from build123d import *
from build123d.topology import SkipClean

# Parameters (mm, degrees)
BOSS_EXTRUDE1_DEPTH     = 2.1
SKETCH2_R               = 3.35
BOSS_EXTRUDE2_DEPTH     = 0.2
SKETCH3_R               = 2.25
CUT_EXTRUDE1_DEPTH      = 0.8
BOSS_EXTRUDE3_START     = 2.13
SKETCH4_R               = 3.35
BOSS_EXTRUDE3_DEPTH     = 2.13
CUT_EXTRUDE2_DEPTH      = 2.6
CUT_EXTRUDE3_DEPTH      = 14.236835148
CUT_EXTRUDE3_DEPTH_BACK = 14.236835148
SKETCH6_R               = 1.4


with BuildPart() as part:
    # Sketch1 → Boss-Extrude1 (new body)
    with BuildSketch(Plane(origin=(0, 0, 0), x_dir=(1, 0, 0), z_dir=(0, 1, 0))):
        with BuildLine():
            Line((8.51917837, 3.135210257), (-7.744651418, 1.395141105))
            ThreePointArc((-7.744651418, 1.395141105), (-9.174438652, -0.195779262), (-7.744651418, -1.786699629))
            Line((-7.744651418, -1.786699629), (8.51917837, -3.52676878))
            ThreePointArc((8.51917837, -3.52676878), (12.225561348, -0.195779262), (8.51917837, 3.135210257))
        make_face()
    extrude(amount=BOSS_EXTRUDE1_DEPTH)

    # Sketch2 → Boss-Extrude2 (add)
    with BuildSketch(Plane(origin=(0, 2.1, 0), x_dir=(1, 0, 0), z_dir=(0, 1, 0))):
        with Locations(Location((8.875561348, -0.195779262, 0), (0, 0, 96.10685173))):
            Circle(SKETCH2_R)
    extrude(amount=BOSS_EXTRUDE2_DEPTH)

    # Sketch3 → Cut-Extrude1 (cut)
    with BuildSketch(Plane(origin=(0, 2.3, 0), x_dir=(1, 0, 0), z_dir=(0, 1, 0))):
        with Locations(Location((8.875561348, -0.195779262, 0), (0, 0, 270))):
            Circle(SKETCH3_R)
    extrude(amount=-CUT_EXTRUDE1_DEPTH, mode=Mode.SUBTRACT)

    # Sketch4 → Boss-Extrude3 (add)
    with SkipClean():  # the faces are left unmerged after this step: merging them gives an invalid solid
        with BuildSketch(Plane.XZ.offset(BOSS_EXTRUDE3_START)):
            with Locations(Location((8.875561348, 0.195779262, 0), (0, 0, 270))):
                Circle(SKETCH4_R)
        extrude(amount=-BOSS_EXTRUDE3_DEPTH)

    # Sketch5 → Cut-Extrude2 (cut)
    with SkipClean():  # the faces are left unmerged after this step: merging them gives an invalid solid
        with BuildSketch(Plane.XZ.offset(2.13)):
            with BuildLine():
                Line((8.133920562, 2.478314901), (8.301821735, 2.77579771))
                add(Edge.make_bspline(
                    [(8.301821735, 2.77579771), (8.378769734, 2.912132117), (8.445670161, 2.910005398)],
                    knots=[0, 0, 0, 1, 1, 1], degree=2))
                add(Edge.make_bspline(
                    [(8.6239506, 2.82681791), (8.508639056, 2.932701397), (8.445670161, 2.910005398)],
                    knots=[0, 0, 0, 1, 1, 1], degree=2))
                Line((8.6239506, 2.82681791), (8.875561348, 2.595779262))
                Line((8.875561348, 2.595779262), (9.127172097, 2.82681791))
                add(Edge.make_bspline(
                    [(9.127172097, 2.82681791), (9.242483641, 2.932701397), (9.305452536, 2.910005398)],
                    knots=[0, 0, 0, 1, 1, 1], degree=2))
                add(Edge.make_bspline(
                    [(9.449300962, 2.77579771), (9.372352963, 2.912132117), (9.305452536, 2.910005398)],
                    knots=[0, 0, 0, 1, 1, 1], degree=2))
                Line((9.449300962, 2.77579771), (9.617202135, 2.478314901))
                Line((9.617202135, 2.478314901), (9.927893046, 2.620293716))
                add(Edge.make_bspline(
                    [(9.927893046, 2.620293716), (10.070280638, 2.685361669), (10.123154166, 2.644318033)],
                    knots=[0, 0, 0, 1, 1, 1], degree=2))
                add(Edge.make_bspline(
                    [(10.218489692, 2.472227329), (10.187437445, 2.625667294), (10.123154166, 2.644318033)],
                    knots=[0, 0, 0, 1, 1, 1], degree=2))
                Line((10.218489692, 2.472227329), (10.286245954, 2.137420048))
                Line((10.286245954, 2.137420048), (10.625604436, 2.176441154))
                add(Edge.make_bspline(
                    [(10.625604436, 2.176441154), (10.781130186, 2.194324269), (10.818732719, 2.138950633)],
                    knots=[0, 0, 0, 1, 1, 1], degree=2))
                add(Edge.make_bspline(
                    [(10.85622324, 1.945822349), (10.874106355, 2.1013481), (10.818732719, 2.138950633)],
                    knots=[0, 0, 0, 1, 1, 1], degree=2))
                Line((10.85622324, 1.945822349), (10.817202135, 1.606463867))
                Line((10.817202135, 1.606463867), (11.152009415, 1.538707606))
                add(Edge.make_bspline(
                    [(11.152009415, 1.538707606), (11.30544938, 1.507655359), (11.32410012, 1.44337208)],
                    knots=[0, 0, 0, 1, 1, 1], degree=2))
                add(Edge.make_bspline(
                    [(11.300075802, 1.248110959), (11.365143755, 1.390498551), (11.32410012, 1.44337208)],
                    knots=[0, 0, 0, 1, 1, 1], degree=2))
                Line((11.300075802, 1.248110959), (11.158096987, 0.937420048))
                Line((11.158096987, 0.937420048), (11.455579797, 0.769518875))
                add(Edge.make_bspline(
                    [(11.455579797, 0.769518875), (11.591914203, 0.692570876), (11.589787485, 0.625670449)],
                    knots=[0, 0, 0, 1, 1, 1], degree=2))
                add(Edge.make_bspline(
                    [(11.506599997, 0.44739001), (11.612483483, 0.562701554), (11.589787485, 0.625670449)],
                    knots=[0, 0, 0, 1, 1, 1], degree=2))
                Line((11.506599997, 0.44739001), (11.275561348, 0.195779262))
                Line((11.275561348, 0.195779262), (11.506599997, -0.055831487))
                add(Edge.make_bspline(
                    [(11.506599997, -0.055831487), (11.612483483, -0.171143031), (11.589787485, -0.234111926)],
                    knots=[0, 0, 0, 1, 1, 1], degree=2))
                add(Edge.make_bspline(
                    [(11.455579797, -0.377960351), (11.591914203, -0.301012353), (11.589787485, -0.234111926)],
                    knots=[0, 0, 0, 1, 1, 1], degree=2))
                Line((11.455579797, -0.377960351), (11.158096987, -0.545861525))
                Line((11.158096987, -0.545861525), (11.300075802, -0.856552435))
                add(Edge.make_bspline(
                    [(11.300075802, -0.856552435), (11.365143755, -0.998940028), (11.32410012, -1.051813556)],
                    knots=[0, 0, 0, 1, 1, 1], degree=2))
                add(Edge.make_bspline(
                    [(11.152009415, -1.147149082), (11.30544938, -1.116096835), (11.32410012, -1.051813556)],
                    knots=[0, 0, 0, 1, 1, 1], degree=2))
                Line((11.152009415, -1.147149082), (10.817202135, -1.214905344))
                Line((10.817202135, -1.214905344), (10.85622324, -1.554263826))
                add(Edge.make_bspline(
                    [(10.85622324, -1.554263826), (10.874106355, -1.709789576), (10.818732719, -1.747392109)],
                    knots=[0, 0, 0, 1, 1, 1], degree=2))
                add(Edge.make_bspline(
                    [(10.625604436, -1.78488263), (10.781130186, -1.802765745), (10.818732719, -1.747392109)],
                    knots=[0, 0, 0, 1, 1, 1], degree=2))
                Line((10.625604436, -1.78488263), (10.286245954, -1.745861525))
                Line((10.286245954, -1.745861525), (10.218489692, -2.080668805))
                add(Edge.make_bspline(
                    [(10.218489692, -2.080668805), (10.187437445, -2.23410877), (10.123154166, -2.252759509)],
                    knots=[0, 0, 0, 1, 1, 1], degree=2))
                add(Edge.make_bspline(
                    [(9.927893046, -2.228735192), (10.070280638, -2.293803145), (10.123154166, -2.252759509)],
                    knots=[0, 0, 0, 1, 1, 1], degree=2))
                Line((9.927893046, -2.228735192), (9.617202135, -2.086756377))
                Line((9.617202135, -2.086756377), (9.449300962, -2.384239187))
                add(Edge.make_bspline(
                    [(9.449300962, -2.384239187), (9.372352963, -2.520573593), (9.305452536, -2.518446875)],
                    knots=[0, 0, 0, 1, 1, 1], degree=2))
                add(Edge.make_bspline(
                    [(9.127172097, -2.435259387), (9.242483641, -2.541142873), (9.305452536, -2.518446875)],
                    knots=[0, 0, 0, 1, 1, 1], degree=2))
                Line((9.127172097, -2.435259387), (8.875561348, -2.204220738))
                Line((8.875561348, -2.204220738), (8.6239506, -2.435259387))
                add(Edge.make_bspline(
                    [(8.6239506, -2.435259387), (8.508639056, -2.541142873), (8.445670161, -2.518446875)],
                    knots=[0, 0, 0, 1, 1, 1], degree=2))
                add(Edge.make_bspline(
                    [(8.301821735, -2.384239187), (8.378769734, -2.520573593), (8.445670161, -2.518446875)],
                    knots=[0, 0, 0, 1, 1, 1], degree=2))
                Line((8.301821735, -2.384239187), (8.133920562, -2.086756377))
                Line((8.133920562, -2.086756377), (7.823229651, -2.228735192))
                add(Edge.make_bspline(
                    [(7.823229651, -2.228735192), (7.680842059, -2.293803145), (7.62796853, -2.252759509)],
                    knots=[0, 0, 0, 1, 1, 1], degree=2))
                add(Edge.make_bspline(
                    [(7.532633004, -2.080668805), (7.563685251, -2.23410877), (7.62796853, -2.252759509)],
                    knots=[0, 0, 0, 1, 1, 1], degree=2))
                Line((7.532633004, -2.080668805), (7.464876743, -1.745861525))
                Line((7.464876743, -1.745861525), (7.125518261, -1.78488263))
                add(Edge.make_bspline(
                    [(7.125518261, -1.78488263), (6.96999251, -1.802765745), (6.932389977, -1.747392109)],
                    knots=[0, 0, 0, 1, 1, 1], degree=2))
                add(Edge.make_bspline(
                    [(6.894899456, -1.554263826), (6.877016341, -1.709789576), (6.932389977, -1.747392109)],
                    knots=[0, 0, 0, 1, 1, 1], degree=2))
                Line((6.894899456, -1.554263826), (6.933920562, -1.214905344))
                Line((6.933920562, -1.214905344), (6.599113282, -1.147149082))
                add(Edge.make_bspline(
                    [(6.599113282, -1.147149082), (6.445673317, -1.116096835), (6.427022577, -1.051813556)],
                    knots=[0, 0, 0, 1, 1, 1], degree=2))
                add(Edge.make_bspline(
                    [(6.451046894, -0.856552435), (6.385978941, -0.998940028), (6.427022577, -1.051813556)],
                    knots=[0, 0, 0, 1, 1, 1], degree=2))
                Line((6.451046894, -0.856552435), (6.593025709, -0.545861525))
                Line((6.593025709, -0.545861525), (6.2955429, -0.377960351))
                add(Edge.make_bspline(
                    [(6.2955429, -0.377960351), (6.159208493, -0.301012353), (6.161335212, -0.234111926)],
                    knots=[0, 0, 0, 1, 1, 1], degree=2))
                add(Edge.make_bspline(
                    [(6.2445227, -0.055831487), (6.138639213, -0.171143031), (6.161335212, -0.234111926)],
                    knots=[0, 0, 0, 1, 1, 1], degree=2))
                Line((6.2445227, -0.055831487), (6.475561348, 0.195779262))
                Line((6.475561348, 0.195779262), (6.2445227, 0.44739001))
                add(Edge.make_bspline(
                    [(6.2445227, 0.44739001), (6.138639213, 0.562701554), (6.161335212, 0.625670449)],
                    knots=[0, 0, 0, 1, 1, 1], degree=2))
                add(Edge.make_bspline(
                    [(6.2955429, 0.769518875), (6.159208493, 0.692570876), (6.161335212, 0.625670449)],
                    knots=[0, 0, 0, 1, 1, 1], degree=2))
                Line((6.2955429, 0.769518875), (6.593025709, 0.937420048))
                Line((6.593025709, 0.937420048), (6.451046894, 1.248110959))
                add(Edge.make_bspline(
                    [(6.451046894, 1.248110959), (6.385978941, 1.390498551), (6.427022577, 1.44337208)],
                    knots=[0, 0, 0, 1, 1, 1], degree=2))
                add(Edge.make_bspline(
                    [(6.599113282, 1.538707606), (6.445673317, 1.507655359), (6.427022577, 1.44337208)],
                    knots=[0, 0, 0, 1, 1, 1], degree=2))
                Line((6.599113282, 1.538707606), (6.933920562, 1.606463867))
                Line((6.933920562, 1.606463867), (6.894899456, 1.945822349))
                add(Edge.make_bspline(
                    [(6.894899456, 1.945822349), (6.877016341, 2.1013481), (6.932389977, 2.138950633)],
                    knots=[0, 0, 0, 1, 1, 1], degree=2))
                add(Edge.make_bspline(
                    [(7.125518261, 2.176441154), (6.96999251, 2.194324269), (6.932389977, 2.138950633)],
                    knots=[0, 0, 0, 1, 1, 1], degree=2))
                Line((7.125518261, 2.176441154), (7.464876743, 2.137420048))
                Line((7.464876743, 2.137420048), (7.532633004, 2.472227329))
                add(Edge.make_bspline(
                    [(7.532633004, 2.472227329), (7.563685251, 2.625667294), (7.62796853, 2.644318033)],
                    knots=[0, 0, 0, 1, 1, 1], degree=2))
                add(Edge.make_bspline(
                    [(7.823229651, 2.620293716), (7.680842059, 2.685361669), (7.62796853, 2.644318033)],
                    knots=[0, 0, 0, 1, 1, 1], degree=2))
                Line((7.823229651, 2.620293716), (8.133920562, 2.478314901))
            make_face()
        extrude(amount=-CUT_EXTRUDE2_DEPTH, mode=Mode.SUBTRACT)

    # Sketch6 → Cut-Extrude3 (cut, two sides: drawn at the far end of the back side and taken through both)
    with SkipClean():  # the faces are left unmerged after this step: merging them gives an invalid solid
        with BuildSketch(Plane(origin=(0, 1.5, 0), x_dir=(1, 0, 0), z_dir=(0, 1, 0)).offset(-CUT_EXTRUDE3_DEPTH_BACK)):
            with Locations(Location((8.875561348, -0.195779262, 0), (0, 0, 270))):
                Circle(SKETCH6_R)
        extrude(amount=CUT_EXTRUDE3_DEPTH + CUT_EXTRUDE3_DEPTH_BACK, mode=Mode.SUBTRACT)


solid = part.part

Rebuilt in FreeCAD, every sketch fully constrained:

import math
import FreeCAD as App
import Part
import Sketcher

V = App.Vector

doc = App.newDocument("Part")
body = doc.addObject("PartDesign::Body", "Body")

sketch1 = body.newObject("Sketcher::SketchObject", "Sketch")
sketch1.AttachmentSupport = (doc.getObject("XZ_Plane"), [""])
sketch1.MapMode = "FlatFace"
sketch1.addGeometry([
    Part.LineSegment(V(8.5, -3.1, 0), V(-7.7, -1.4, 0)),
    Part.ArcOfCircle(Part.Circle(V(-7.6, 0.2, 0), V(0, 0, 1), 1.6), math.radians(96), math.radians(264)),
    Part.LineSegment(V(-7.7, 1.8, 0), V(8.5, 3.5, 0)),
    Part.ArcOfCircle(Part.Circle(V(8.9, 0.2, 0), V(0, 0, 1), 3.4), math.radians(-96), math.radians(96)),
], False)
sketch1.addConstraint([
    Sketcher.Constraint("Tangent", 0, 2, 1, 2),
    Sketcher.Constraint("Tangent", 1, 1, 2, 1),
    Sketcher.Constraint("Tangent", 2, 2, 3, 2),
    Sketcher.Constraint("Tangent", 3, 1, 0, 1),
    Sketcher.Constraint("Horizontal", 1, 3, 3, 3),
    Sketcher.Constraint("Radius", 1, 1.6),
    Sketcher.Constraint("Radius", 3, 3.35),
    Sketcher.Constraint("DistanceX", 1, 3, 3, 3, 16.45),
    Sketcher.Constraint("DistanceY", -1, 1, 1, 1, 1.7867),
    Sketcher.Constraint("DistanceX", 1, 3, -1, 1, 7.574439),
])
pad1 = body.newObject("PartDesign::Pad", "Pad")
pad1.Profile = sketch1
pad1.Length = 2.1
pad1.Reversed = True

sketch2 = body.newObject("Sketcher::SketchObject", "Sketch001")
sketch2.AttachmentSupport = (doc.getObject("XZ_Plane"), [""])
sketch2.MapMode = "FlatFace"
sketch2.AttachmentOffset = App.Placement(V(0, 0, -2.1), App.Rotation())
sketch2.addGeometry(Part.Circle(V(8.9, 0.2, 0), V(0, 0, 1), 3.4), False)
sketch2.addConstraint([
    Sketcher.Constraint("Diameter", 0, 6.7),
    Sketcher.Constraint("DistanceX", -1, 1, 0, 3, 8.875561),
    Sketcher.Constraint("DistanceY", -1, 1, 0, 3, 0.195779),
])
pad2 = body.newObject("PartDesign::Pad", "Pad001")
pad2.Profile = sketch2
pad2.Length = 0.2
pad2.Reversed = True

sketch3 = body.newObject("Sketcher::SketchObject", "Sketch002")
sketch3.AttachmentSupport = (doc.getObject("XZ_Plane"), [""])
sketch3.MapMode = "FlatFace"
sketch3.AttachmentOffset = App.Placement(V(0, 0, -2.3), App.Rotation())
sketch3.addGeometry(Part.Circle(V(8.9, 0.2, 0), V(0, 0, 1), 2.2), False)
sketch3.addConstraint([
    Sketcher.Constraint("Diameter", 0, 4.5),
    Sketcher.Constraint("DistanceX", -1, 1, 0, 3, 8.875561),
    Sketcher.Constraint("DistanceY", -1, 1, 0, 3, 0.195779),
])
pocket1 = body.newObject("PartDesign::Pocket", "Pocket")
pocket1.Profile = sketch3
pocket1.Length = 0.8
pocket1.Reversed = True

sketch4 = body.newObject("Sketcher::SketchObject", "Sketch003")
sketch4.AttachmentSupport = (doc.getObject("XZ_Plane"), [""])
sketch4.MapMode = "FlatFace"
sketch4.AttachmentOffset = App.Placement(V(0, 0, 2.13), App.Rotation())
sketch4.addGeometry(Part.Circle(V(8.9, 0.2, 0), V(0, 0, 1), 3.4), False)
sketch4.addConstraint([
    Sketcher.Constraint("Diameter", 0, 6.7),
    Sketcher.Constraint("DistanceX", -1, 1, 0, 3, 8.875561),
    Sketcher.Constraint("DistanceY", -1, 1, 0, 3, 0.195779),
])
pad3 = body.newObject("PartDesign::Pad", "Pad002")
pad3.Profile = sketch4
pad3.Length = 2.13
pad3.Reversed = True

sketch5 = body.newObject("Sketcher::SketchObject", "Sketch004")
sketch5.AttachmentSupport = (doc.getObject("XZ_Plane"), [""])
sketch5.MapMode = "FlatFace"
sketch5.AttachmentOffset = App.Placement(V(0, 0, 2.13), App.Rotation())
sketch5.addGeometry([
    Part.LineSegment(V(8.301822, 2.775798, 0), V(8.133921, 2.478315, 0)),
    Part.LineSegment(V(8.133921, 2.478315, 0), V(7.82323, 2.620294, 0)),
    Part.BSplineCurve([V(7.82323, 2.620294, 0), V(7.680842, 2.685362, 0), V(7.627969, 2.644318, 0)], [3, 3], [0, 1], False, 2, [1, 1, 1], False),
    Part.BSplineCurve([V(7.532633, 2.472227, 0), V(7.563685, 2.625667, 0), V(7.627969, 2.644318, 0)], [3, 3], [0, 1], False, 2, [1, 1, 1], False),
    Part.LineSegment(V(7.532633, 2.472227, 0), V(7.464877, 2.13742, 0)),
    Part.LineSegment(V(7.464877, 2.13742, 0), V(7.125518, 2.176441, 0)),
    Part.BSplineCurve([V(7.125518, 2.176441, 0), V(6.969993, 2.194324, 0), V(6.93239, 2.138951, 0)], [3, 3], [0, 1], False, 2, [1, 1, 1], False),
    Part.BSplineCurve([V(6.894899, 1.945822, 0), V(6.877016, 2.101348, 0), V(6.93239, 2.138951, 0)], [3, 3], [0, 1], False, 2, [1, 1, 1], False),
    Part.LineSegment(V(6.894899, 1.945822, 0), V(6.933921, 1.606464, 0)),
    Part.LineSegment(V(6.933921, 1.606464, 0), V(6.599113, 1.538708, 0)),
    Part.BSplineCurve([V(6.599113, 1.538708, 0), V(6.445673, 1.507655, 0), V(6.427023, 1.443372, 0)], [3, 3], [0, 1], False, 2, [1, 1, 1], False),
    Part.BSplineCurve([V(6.451047, 1.248111, 0), V(6.385979, 1.390499, 0), V(6.427023, 1.443372, 0)], [3, 3], [0, 1], False, 2, [1, 1, 1], False),
    Part.LineSegment(V(6.451047, 1.248111, 0), V(6.593026, 0.93742, 0)),
    Part.LineSegment(V(6.593026, 0.93742, 0), V(6.295543, 0.769519, 0)),
    Part.BSplineCurve([V(6.295543, 0.769519, 0), V(6.159208, 0.692571, 0), V(6.161335, 0.62567, 0)], [3, 3], [0, 1], False, 2, [1, 1, 1], False),
    Part.BSplineCurve([V(6.244523, 0.44739, 0), V(6.138639, 0.562702, 0), V(6.161335, 0.62567, 0)], [3, 3], [0, 1], False, 2, [1, 1, 1], False),
    Part.LineSegment(V(6.244523, 0.44739, 0), V(6.475561, 0.195779, 0)),
    Part.LineSegment(V(6.475561, 0.195779, 0), V(6.244523, -0.055831, 0)),
    Part.BSplineCurve([V(6.244523, -0.055831, 0), V(6.138639, -0.171143, 0), V(6.161335, -0.234112, 0)], [3, 3], [0, 1], False, 2, [1, 1, 1], False),
    Part.BSplineCurve([V(6.295543, -0.37796, 0), V(6.159208, -0.301012, 0), V(6.161335, -0.234112, 0)], [3, 3], [0, 1], False, 2, [1, 1, 1], False),
    Part.LineSegment(V(6.295543, -0.37796, 0), V(6.593026, -0.545862, 0)),
    Part.LineSegment(V(6.593026, -0.545862, 0), V(6.451047, -0.856552, 0)),
    Part.BSplineCurve([V(6.451047, -0.856552, 0), V(6.385979, -0.99894, 0), V(6.427023, -1.051814, 0)], [3, 3], [0, 1], False, 2, [1, 1, 1], False),
    Part.BSplineCurve([V(6.599113, -1.147149, 0), V(6.445673, -1.116097, 0), V(6.427023, -1.051814, 0)], [3, 3], [0, 1], False, 2, [1, 1, 1], False),
    Part.LineSegment(V(6.599113, -1.147149, 0), V(6.933921, -1.214905, 0)),
    Part.LineSegment(V(6.933921, -1.214905, 0), V(6.894899, -1.554264, 0)),
    Part.BSplineCurve([V(6.894899, -1.554264, 0), V(6.877016, -1.70979, 0), V(6.93239, -1.747392, 0)], [3, 3], [0, 1], False, 2, [1, 1, 1], False),
    Part.BSplineCurve([V(7.125518, -1.784883, 0), V(6.969993, -1.802766, 0), V(6.93239, -1.747392, 0)], [3, 3], [0, 1], False, 2, [1, 1, 1], False),
    Part.LineSegment(V(7.125518, -1.784883, 0), V(7.464877, -1.745862, 0)),
    Part.LineSegment(V(7.464877, -1.745862, 0), V(7.532633, -2.080669, 0)),
    Part.BSplineCurve([V(7.532633, -2.080669, 0), V(7.563685, -2.234109, 0), V(7.627969, -2.25276, 0)], [3, 3], [0, 1], False, 2, [1, 1, 1], False),
    Part.BSplineCurve([V(7.82323, -2.228735, 0), V(7.680842, -2.293803, 0), V(7.627969, -2.25276, 0)], [3, 3], [0, 1], False, 2, [1, 1, 1], False),
    Part.LineSegment(V(7.82323, -2.228735, 0), V(8.133921, -2.086756, 0)),
    Part.LineSegment(V(8.133921, -2.086756, 0), V(8.301822, -2.384239, 0)),
    Part.BSplineCurve([V(8.301822, -2.384239, 0), V(8.37877, -2.520574, 0), V(8.44567, -2.518447, 0)], [3, 3], [0, 1], False, 2, [1, 1, 1], False),
    Part.BSplineCurve([V(8.623951, -2.435259, 0), V(8.508639, -2.541143, 0), V(8.44567, -2.518447, 0)], [3, 3], [0, 1], False, 2, [1, 1, 1], False),
    Part.LineSegment(V(8.623951, -2.435259, 0), V(8.875561, -2.204221, 0)),
    Part.LineSegment(V(8.875561, -2.204221, 0), V(9.127172, -2.435259, 0)),
    Part.BSplineCurve([V(9.127172, -2.435259, 0), V(9.242484, -2.541143, 0), V(9.305453, -2.518447, 0)], [3, 3], [0, 1], False, 2, [1, 1, 1], False),
    Part.BSplineCurve([V(9.449301, -2.384239, 0), V(9.372353, -2.520574, 0), V(9.305453, -2.518447, 0)], [3, 3], [0, 1], False, 2, [1, 1, 1], False),
    Part.LineSegment(V(9.449301, -2.384239, 0), V(9.617202, -2.086756, 0)),
    Part.LineSegment(V(9.617202, -2.086756, 0), V(9.927893, -2.228735, 0)),
    Part.BSplineCurve([V(9.927893, -2.228735, 0), V(10.070281, -2.293803, 0), V(10.123154, -2.25276, 0)], [3, 3], [0, 1], False, 2, [1, 1, 1], False),
    Part.BSplineCurve([V(10.21849, -2.080669, 0), V(10.187437, -2.234109, 0), V(10.123154, -2.25276, 0)], [3, 3], [0, 1], False, 2, [1, 1, 1], False),
    Part.LineSegment(V(10.21849, -2.080669, 0), V(10.286246, -1.745862, 0)),
    Part.LineSegment(V(10.286246, -1.745862, 0), V(10.625604, -1.784883, 0)),
    Part.BSplineCurve([V(10.625604, -1.784883, 0), V(10.78113, -1.802766, 0), V(10.818733, -1.747392, 0)], [3, 3], [0, 1], False, 2, [1, 1, 1], False),
    Part.BSplineCurve([V(10.856223, -1.554264, 0), V(10.874106, -1.70979, 0), V(10.818733, -1.747392, 0)], [3, 3], [0, 1], False, 2, [1, 1, 1], False),
    Part.LineSegment(V(10.856223, -1.554264, 0), V(10.817202, -1.214905, 0)),
    Part.LineSegment(V(10.817202, -1.214905, 0), V(11.152009, -1.147149, 0)),
    Part.BSplineCurve([V(11.152009, -1.147149, 0), V(11.305449, -1.116097, 0), V(11.3241, -1.051814, 0)], [3, 3], [0, 1], False, 2, [1, 1, 1], False),
    Part.BSplineCurve([V(11.300076, -0.856552, 0), V(11.365144, -0.99894, 0), V(11.3241, -1.051814, 0)], [3, 3], [0, 1], False, 2, [1, 1, 1], False),
    Part.LineSegment(V(11.300076, -0.856552, 0), V(11.158097, -0.545862, 0)),
    Part.LineSegment(V(11.158097, -0.545862, 0), V(11.45558, -0.37796, 0)),
    Part.BSplineCurve([V(11.45558, -0.37796, 0), V(11.591914, -0.301012, 0), V(11.589787, -0.234112, 0)], [3, 3], [0, 1], False, 2, [1, 1, 1], False),
    Part.BSplineCurve([V(11.5066, -0.055831, 0), V(11.612483, -0.171143, 0), V(11.589787, -0.234112, 0)], [3, 3], [0, 1], False, 2, [1, 1, 1], False),
    Part.LineSegment(V(11.5066, -0.055831, 0), V(11.275561, 0.195779, 0)),
    Part.LineSegment(V(11.275561, 0.195779, 0), V(11.5066, 0.44739, 0)),
    Part.BSplineCurve([V(11.5066, 0.44739, 0), V(11.612483, 0.562702, 0), V(11.589787, 0.62567, 0)], [3, 3], [0, 1], False, 2, [1, 1, 1], False),
    Part.BSplineCurve([V(11.45558, 0.769519, 0), V(11.591914, 0.692571, 0), V(11.589787, 0.62567, 0)], [3, 3], [0, 1], False, 2, [1, 1, 1], False),
    Part.LineSegment(V(11.45558, 0.769519, 0), V(11.158097, 0.93742, 0)),
    Part.LineSegment(V(11.158097, 0.93742, 0), V(11.300076, 1.248111, 0)),
    Part.BSplineCurve([V(11.300076, 1.248111, 0), V(11.365144, 1.390499, 0), V(11.3241, 1.443372, 0)], [3, 3], [0, 1], False, 2, [1, 1, 1], False),
    Part.BSplineCurve([V(11.152009, 1.538708, 0), V(11.305449, 1.507655, 0), V(11.3241, 1.443372, 0)], [3, 3], [0, 1], False, 2, [1, 1, 1], False),
    Part.LineSegment(V(11.152009, 1.538708, 0), V(10.817202, 1.606464, 0)),
    Part.LineSegment(V(10.817202, 1.606464, 0), V(10.856223, 1.945822, 0)),
    Part.BSplineCurve([V(10.856223, 1.945822, 0), V(10.874106, 2.101348, 0), V(10.818733, 2.138951, 0)], [3, 3], [0, 1], False, 2, [1, 1, 1], False),
    Part.BSplineCurve([V(10.625604, 2.176441, 0), V(10.78113, 2.194324, 0), V(10.818733, 2.138951, 0)], [3, 3], [0, 1], False, 2, [1, 1, 1], False),
    Part.LineSegment(V(10.625604, 2.176441, 0), V(10.286246, 2.13742, 0)),
    Part.LineSegment(V(10.286246, 2.13742, 0), V(10.21849, 2.472227, 0)),
    Part.BSplineCurve([V(10.21849, 2.472227, 0), V(10.187437, 2.625667, 0), V(10.123154, 2.644318, 0)], [3, 3], [0, 1], False, 2, [1, 1, 1], False),
    Part.BSplineCurve([V(9.927893, 2.620294, 0), V(10.070281, 2.685362, 0), V(10.123154, 2.644318, 0)], [3, 3], [0, 1], False, 2, [1, 1, 1], False),
    Part.LineSegment(V(9.927893, 2.620294, 0), V(9.617202, 2.478315, 0)),
    Part.LineSegment(V(9.617202, 2.478315, 0), V(9.449301, 2.775798, 0)),
    Part.BSplineCurve([V(9.449301, 2.775798, 0), V(9.372353, 2.912132, 0), V(9.305453, 2.910005, 0)], [3, 3], [0, 1], False, 2, [1, 1, 1], False),
    Part.BSplineCurve([V(9.127172, 2.826818, 0), V(9.242484, 2.932701, 0), V(9.305453, 2.910005, 0)], [3, 3], [0, 1], False, 2, [1, 1, 1], False),
    Part.LineSegment(V(9.127172, 2.826818, 0), V(8.875561, 2.595779, 0)),
    Part.LineSegment(V(8.875561, 2.595779, 0), V(8.623951, 2.826818, 0)),
    Part.BSplineCurve([V(8.623951, 2.826818, 0), V(8.508639, 2.932701, 0), V(8.44567, 2.910005, 0)], [3, 3], [0, 1], False, 2, [1, 1, 1], False),
    Part.BSplineCurve([V(8.301822, 2.775798, 0), V(8.37877, 2.912132, 0), V(8.44567, 2.910005, 0)], [3, 3], [0, 1], False, 2, [1, 1, 1], False),
], False)
sketch5.addConstraint([
    Sketcher.Constraint("Block", 2),
    Sketcher.Constraint("Block", 3),
    Sketcher.Constraint("Block", 6),
    Sketcher.Constraint("Block", 7),
    Sketcher.Constraint("Block", 10),
    Sketcher.Constraint("Block", 11),
    Sketcher.Constraint("Block", 14),
    Sketcher.Constraint("Block", 15),
    Sketcher.Constraint("Block", 18),
    Sketcher.Constraint("Block", 19),
    Sketcher.Constraint("Block", 22),
    Sketcher.Constraint("Block", 23),
    Sketcher.Constraint("Block", 26),
    Sketcher.Constraint("Block", 27),
    Sketcher.Constraint("Block", 30),
    Sketcher.Constraint("Block", 31),
    Sketcher.Constraint("Block", 34),
    Sketcher.Constraint("Block", 35),
    Sketcher.Constraint("Block", 38),
    Sketcher.Constraint("Block", 39),
    Sketcher.Constraint("Block", 42),
    Sketcher.Constraint("Block", 43),
    Sketcher.Constraint("Block", 46),
    Sketcher.Constraint("Block", 47),
    Sketcher.Constraint("Block", 50),
    Sketcher.Constraint("Block", 51),
    Sketcher.Constraint("Block", 54),
    Sketcher.Constraint("Block", 55),
    Sketcher.Constraint("Block", 58),
    Sketcher.Constraint("Block", 59),
    Sketcher.Constraint("Block", 62),
    Sketcher.Constraint("Block", 63),
    Sketcher.Constraint("Block", 66),
    Sketcher.Constraint("Block", 67),
    Sketcher.Constraint("Block", 70),
    Sketcher.Constraint("Block", 71),
    Sketcher.Constraint("Block", 74),
    Sketcher.Constraint("Block", 75),
    Sketcher.Constraint("Block", 78),
    Sketcher.Constraint("Block", 79),
    Sketcher.Constraint("Coincident", 0, 2, 1, 1),
    Sketcher.Constraint("Coincident", 1, 2, 2, 1),
    Sketcher.Constraint("Coincident", 3, 1, 4, 1),
    Sketcher.Constraint("Coincident", 4, 2, 5, 1),
    Sketcher.Constraint("Coincident", 5, 2, 6, 1),
    Sketcher.Constraint("Coincident", 7, 1, 8, 1),
    Sketcher.Constraint("Coincident", 8, 2, 9, 1),
    Sketcher.Constraint("Coincident", 9, 2, 10, 1),
    Sketcher.Constraint("Coincident", 11, 1, 12, 1),
    Sketcher.Constraint("Coincident", 12, 2, 13, 1),
    Sketcher.Constraint("Coincident", 13, 2, 14, 1),
    Sketcher.Constraint("Coincident", 15, 1, 16, 1),
    Sketcher.Constraint("Coincident", 16, 2, 17, 1),
    Sketcher.Constraint("Coincident", 17, 2, 18, 1),
    Sketcher.Constraint("Coincident", 19, 1, 20, 1),
    Sketcher.Constraint("Coincident", 20, 2, 21, 1),
    Sketcher.Constraint("Coincident", 21, 2, 22, 1),
    Sketcher.Constraint("Coincident", 23, 1, 24, 1),
    Sketcher.Constraint("Coincident", 24, 2, 25, 1),
    Sketcher.Constraint("Coincident", 25, 2, 26, 1),
    Sketcher.Constraint("Coincident", 27, 1, 28, 1),
    Sketcher.Constraint("Coincident", 28, 2, 29, 1),
    Sketcher.Constraint("Coincident", 29, 2, 30, 1),
    Sketcher.Constraint("Coincident", 31, 1, 32, 1),
    Sketcher.Constraint("Coincident", 32, 2, 33, 1),
    Sketcher.Constraint("Coincident", 33, 2, 34, 1),
    Sketcher.Constraint("Coincident", 35, 1, 36, 1),
    Sketcher.Constraint("Coincident", 36, 2, 37, 1),
    Sketcher.Constraint("Coincident", 37, 2, 38, 1),
    Sketcher.Constraint("Coincident", 39, 1, 40, 1),
    Sketcher.Constraint("Coincident", 40, 2, 41, 1),
    Sketcher.Constraint("Coincident", 41, 2, 42, 1),
    Sketcher.Constraint("Coincident", 43, 1, 44, 1),
    Sketcher.Constraint("Coincident", 44, 2, 45, 1),
    Sketcher.Constraint("Coincident", 45, 2, 46, 1),
    Sketcher.Constraint("Coincident", 47, 1, 48, 1),
    Sketcher.Constraint("Coincident", 48, 2, 49, 1),
    Sketcher.Constraint("Coincident", 49, 2, 50, 1),
    Sketcher.Constraint("Coincident", 51, 1, 52, 1),
    Sketcher.Constraint("Coincident", 52, 2, 53, 1),
    Sketcher.Constraint("Coincident", 53, 2, 54, 1),
    Sketcher.Constraint("Coincident", 55, 1, 56, 1),
    Sketcher.Constraint("Coincident", 56, 2, 57, 1),
    Sketcher.Constraint("Coincident", 57, 2, 58, 1),
    Sketcher.Constraint("Coincident", 59, 1, 60, 1),
    Sketcher.Constraint("Coincident", 60, 2, 61, 1),
    Sketcher.Constraint("Coincident", 61, 2, 62, 1),
    Sketcher.Constraint("Coincident", 63, 1, 64, 1),
    Sketcher.Constraint("Coincident", 64, 2, 65, 1),
    Sketcher.Constraint("Coincident", 65, 2, 66, 1),
    Sketcher.Constraint("Coincident", 67, 1, 68, 1),
    Sketcher.Constraint("Coincident", 68, 2, 69, 1),
    Sketcher.Constraint("Coincident", 69, 2, 70, 1),
    Sketcher.Constraint("Coincident", 71, 1, 72, 1),
    Sketcher.Constraint("Coincident", 72, 2, 73, 1),
    Sketcher.Constraint("Coincident", 73, 2, 74, 1),
    Sketcher.Constraint("Coincident", 75, 1, 76, 1),
    Sketcher.Constraint("Coincident", 76, 2, 77, 1),
    Sketcher.Constraint("Coincident", 77, 2, 78, 1),
    Sketcher.Constraint("Coincident", 79, 1, 0, 1),
    Sketcher.Constraint("DistanceX", 8, 2, 0, 2, 1.2),
    Sketcher.Constraint("DistanceY", 12, 2, 4, 2, 1.2),
    Sketcher.Constraint("DistanceY", 28, 2, 20, 2, 1.2),
    Sketcher.Constraint("DistanceX", 24, 2, 32, 2, 1.2),
    Sketcher.Constraint("DistanceX", 40, 2, 48, 2, 1.2),
    Sketcher.Constraint("DistanceY", 44, 2, 52, 2, 1.2),
    Sketcher.Constraint("DistanceY", 60, 2, 68, 2, 1.2),
    Sketcher.Constraint("DistanceX", 72, 2, 64, 2, 1.2),
    Sketcher.Constraint("DistanceY", 13, 2, 12, 2, 0.167901),
    Sketcher.Constraint("DistanceX", 32, 2, 33, 2, 0.167901),
    Sketcher.Constraint("DistanceY", 52, 2, 53, 2, 0.167901),
    Sketcher.Constraint("DistanceX", 73, 2, 72, 2, 0.167901),
    Sketcher.Constraint("DistanceX", -1, 1, 0, 2, 8.133921),
    Sketcher.Constraint("DistanceX", -1, 1, 16, 2, 6.475561),
    Sketcher.Constraint("DistanceY", -1, 1, 16, 2, 0.195779),
    Sketcher.Constraint("DistanceY", 20, 2, -1, 1, 0.545862),
    Sketcher.Constraint("DistanceX", -1, 1, 36, 2, 8.875561),
    Sketcher.Constraint("DistanceY", 36, 2, -1, 1, 2.204221),
    Sketcher.Constraint("DistanceX", -1, 1, 56, 2, 11.275561),
    Sketcher.Constraint("DistanceY", -1, 1, 56, 2, 0.195779),
    Sketcher.Constraint("DistanceY", -1, 1, 60, 2, 0.93742),
    Sketcher.Constraint("DistanceX", -1, 1, 76, 2, 8.875561),
    Sketcher.Constraint("DistanceY", -1, 1, 76, 2, 2.595779),
    Sketcher.Constraint("DistanceY", 0, 2, 1, 2, 0.141979),
    Sketcher.Constraint("DistanceX", 5, 2, 4, 2, 0.339358),
    Sketcher.Constraint("DistanceY", 8, 2, 1, 2, 1.01383),
    Sketcher.Constraint("DistanceX", 12, 2, 4, 2, 0.871851),
    Sketcher.Constraint("DistanceX", 21, 2, 20, 2, 0.141979),
    Sketcher.Constraint("DistanceY", 25, 2, 24, 2, 0.339358),
    Sketcher.Constraint("DistanceX", 21, 2, 28, 2, 1.01383),
    Sketcher.Constraint("DistanceY", 32, 2, 24, 2, 0.871851),
    Sketcher.Constraint("DistanceX", 37, 2, 40, 2, 0.49003),
    Sketcher.Constraint("DistanceY", 41, 2, 40, 2, 0.141979),
    Sketcher.Constraint("DistanceX", 44, 2, 45, 2, 0.339358),
    Sketcher.Constraint("DistanceY", 41, 2, 48, 2, 1.01383),
    Sketcher.Constraint("DistanceX", 44, 2, 52, 2, 0.871851),
    Sketcher.Constraint("DistanceX", 60, 2, 61, 2, 0.141979),
    Sketcher.Constraint("DistanceY", 64, 2, 65, 2, 0.339358),
    Sketcher.Constraint("DistanceX", 68, 2, 61, 2, 1.01383),
    Sketcher.Constraint("DistanceY", 64, 2, 72, 2, 0.871851),
])
pocket2 = body.newObject("PartDesign::Pocket", "Pocket001")
pocket2.Profile = sketch5
pocket2.Length = 2.6

sketch6 = body.newObject("Sketcher::SketchObject", "Sketch005")
sketch6.AttachmentSupport = (doc.getObject("XZ_Plane"), [""])
sketch6.MapMode = "FlatFace"
sketch6.AttachmentOffset = App.Placement(V(0, 0, -1.5), App.Rotation())
sketch6.addGeometry(Part.Circle(V(8.9, 0.2, 0), V(0, 0, 1), 1.4), False)
sketch6.addConstraint([
    Sketcher.Constraint("Diameter", 0, 2.8),
    Sketcher.Constraint("DistanceX", -1, 1, 0, 3, 8.875561),
    Sketcher.Constraint("DistanceY", -1, 1, 0, 3, 0.195779),
])
pocket3 = body.newObject("PartDesign::Pocket", "Pocket002")
pocket3.Profile = sketch6
pocket3.Type = "ThroughAll"
pocket3.Midplane = True

doc.recompute()
